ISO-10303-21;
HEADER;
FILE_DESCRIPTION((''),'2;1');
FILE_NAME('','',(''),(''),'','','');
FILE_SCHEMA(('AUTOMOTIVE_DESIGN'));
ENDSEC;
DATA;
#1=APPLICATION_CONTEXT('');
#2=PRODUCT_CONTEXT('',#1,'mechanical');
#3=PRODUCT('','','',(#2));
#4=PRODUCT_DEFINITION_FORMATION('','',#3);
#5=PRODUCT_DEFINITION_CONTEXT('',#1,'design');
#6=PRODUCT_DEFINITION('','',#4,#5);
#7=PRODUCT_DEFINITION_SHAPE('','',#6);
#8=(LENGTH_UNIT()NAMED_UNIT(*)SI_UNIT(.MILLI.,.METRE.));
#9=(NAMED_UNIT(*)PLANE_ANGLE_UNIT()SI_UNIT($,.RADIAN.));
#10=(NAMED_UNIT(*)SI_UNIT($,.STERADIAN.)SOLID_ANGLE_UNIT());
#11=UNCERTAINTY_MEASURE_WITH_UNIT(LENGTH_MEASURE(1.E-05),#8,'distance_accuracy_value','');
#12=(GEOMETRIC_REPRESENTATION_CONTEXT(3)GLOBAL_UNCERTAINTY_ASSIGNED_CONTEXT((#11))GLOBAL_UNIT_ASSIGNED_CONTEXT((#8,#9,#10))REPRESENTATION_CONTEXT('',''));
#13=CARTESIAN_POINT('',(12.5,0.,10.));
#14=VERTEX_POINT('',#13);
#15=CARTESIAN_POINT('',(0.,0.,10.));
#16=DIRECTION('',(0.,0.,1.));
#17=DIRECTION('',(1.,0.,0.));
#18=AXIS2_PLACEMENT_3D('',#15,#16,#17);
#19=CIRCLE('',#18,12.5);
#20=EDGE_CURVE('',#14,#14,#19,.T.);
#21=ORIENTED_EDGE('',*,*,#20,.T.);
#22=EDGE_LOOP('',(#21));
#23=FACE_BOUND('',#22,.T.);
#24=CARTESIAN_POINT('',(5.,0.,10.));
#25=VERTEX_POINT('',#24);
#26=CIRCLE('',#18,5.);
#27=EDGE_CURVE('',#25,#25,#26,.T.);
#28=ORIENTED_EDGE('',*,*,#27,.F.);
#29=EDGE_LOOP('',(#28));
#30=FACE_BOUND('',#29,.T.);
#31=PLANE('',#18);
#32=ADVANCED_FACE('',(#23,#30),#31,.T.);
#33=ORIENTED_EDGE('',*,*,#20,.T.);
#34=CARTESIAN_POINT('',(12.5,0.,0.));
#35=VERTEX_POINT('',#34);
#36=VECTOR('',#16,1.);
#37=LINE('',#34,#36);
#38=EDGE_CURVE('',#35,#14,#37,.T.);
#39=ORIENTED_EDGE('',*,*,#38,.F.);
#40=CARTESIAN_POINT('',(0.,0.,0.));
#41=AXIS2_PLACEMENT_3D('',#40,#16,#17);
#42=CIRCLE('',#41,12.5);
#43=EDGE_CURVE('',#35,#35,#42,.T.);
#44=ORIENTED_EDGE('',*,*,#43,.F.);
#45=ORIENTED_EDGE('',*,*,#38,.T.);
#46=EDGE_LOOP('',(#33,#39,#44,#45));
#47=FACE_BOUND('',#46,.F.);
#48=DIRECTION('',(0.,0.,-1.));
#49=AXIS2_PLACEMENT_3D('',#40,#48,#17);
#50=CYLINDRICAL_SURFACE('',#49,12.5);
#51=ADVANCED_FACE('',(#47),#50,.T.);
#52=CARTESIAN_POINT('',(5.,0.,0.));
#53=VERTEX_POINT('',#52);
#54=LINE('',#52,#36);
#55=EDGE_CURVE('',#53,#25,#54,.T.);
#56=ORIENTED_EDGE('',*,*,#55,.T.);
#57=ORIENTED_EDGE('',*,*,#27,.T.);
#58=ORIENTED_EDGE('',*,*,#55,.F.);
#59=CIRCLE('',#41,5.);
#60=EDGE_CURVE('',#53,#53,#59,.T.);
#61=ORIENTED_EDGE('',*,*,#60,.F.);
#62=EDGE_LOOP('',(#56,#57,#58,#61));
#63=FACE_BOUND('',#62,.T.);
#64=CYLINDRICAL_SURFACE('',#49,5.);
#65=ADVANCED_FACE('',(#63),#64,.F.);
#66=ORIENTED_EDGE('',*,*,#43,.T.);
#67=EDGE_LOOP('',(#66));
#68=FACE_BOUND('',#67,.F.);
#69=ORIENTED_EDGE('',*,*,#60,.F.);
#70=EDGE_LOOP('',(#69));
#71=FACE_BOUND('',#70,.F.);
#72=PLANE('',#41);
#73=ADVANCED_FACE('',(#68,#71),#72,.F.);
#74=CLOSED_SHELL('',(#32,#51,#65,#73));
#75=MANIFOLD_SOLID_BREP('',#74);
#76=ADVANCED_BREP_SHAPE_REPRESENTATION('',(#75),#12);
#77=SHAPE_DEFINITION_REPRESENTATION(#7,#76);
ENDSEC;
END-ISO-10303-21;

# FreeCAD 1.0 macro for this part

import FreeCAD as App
import Part
import Sketcher
from FreeCAD import Vector
Q = App.Units.Quantity

doc = App.newDocument("Part")
params = doc.addObject("Spreadsheet::Sheet", "Params")
for row, (alias, value) in enumerate([
    ("sketch1_diameter", "25 mm"),
    ("sketch1_diameter2", "10 mm"),
    ("pad1_length", "10 mm"),
], start=1):
    params.set(f"A{row}", alias)
    params.set(f"B{row}", "=" + value)
    params.setAlias(f"B{row}", alias)

body = doc.addObject("PartDesign::Body", "Body")

# Sketch on XY plane
sketch1 = body.newObject("Sketcher::SketchObject", "Sketch")
sketch1.AttachmentSupport = (doc.getObject("XY_Plane"), [""])
sketch1.MapMode = "FlatFace"
sketch1.addGeometry([
    Part.Circle(Vector(0, 0, 0), Vector(0, 0, 1), 12.5),
    Part.Circle(Vector(0, 0, 0), Vector(0, 0, 1), 5),
], False)
sketch1.addConstraint([
    Sketcher.Constraint("Coincident", 0, 3, -1, 1),
    Sketcher.Constraint("Coincident", 1, 3, -1, 1),
    Sketcher.Constraint("Diameter", 0, Q("25 mm")),
    Sketcher.Constraint("Diameter", 1, Q("10 mm")),
])
sketch1.setExpression("Constraints[2]", "Params.sketch1_diameter")
sketch1.setExpression("Constraints[3]", "Params.sketch1_diameter2")
pad1 = body.newObject("PartDesign::Pad", "Pad")
pad1.Profile = sketch1
pad1.setExpression("Length", "Params.pad1_length")

doc.recompute()
